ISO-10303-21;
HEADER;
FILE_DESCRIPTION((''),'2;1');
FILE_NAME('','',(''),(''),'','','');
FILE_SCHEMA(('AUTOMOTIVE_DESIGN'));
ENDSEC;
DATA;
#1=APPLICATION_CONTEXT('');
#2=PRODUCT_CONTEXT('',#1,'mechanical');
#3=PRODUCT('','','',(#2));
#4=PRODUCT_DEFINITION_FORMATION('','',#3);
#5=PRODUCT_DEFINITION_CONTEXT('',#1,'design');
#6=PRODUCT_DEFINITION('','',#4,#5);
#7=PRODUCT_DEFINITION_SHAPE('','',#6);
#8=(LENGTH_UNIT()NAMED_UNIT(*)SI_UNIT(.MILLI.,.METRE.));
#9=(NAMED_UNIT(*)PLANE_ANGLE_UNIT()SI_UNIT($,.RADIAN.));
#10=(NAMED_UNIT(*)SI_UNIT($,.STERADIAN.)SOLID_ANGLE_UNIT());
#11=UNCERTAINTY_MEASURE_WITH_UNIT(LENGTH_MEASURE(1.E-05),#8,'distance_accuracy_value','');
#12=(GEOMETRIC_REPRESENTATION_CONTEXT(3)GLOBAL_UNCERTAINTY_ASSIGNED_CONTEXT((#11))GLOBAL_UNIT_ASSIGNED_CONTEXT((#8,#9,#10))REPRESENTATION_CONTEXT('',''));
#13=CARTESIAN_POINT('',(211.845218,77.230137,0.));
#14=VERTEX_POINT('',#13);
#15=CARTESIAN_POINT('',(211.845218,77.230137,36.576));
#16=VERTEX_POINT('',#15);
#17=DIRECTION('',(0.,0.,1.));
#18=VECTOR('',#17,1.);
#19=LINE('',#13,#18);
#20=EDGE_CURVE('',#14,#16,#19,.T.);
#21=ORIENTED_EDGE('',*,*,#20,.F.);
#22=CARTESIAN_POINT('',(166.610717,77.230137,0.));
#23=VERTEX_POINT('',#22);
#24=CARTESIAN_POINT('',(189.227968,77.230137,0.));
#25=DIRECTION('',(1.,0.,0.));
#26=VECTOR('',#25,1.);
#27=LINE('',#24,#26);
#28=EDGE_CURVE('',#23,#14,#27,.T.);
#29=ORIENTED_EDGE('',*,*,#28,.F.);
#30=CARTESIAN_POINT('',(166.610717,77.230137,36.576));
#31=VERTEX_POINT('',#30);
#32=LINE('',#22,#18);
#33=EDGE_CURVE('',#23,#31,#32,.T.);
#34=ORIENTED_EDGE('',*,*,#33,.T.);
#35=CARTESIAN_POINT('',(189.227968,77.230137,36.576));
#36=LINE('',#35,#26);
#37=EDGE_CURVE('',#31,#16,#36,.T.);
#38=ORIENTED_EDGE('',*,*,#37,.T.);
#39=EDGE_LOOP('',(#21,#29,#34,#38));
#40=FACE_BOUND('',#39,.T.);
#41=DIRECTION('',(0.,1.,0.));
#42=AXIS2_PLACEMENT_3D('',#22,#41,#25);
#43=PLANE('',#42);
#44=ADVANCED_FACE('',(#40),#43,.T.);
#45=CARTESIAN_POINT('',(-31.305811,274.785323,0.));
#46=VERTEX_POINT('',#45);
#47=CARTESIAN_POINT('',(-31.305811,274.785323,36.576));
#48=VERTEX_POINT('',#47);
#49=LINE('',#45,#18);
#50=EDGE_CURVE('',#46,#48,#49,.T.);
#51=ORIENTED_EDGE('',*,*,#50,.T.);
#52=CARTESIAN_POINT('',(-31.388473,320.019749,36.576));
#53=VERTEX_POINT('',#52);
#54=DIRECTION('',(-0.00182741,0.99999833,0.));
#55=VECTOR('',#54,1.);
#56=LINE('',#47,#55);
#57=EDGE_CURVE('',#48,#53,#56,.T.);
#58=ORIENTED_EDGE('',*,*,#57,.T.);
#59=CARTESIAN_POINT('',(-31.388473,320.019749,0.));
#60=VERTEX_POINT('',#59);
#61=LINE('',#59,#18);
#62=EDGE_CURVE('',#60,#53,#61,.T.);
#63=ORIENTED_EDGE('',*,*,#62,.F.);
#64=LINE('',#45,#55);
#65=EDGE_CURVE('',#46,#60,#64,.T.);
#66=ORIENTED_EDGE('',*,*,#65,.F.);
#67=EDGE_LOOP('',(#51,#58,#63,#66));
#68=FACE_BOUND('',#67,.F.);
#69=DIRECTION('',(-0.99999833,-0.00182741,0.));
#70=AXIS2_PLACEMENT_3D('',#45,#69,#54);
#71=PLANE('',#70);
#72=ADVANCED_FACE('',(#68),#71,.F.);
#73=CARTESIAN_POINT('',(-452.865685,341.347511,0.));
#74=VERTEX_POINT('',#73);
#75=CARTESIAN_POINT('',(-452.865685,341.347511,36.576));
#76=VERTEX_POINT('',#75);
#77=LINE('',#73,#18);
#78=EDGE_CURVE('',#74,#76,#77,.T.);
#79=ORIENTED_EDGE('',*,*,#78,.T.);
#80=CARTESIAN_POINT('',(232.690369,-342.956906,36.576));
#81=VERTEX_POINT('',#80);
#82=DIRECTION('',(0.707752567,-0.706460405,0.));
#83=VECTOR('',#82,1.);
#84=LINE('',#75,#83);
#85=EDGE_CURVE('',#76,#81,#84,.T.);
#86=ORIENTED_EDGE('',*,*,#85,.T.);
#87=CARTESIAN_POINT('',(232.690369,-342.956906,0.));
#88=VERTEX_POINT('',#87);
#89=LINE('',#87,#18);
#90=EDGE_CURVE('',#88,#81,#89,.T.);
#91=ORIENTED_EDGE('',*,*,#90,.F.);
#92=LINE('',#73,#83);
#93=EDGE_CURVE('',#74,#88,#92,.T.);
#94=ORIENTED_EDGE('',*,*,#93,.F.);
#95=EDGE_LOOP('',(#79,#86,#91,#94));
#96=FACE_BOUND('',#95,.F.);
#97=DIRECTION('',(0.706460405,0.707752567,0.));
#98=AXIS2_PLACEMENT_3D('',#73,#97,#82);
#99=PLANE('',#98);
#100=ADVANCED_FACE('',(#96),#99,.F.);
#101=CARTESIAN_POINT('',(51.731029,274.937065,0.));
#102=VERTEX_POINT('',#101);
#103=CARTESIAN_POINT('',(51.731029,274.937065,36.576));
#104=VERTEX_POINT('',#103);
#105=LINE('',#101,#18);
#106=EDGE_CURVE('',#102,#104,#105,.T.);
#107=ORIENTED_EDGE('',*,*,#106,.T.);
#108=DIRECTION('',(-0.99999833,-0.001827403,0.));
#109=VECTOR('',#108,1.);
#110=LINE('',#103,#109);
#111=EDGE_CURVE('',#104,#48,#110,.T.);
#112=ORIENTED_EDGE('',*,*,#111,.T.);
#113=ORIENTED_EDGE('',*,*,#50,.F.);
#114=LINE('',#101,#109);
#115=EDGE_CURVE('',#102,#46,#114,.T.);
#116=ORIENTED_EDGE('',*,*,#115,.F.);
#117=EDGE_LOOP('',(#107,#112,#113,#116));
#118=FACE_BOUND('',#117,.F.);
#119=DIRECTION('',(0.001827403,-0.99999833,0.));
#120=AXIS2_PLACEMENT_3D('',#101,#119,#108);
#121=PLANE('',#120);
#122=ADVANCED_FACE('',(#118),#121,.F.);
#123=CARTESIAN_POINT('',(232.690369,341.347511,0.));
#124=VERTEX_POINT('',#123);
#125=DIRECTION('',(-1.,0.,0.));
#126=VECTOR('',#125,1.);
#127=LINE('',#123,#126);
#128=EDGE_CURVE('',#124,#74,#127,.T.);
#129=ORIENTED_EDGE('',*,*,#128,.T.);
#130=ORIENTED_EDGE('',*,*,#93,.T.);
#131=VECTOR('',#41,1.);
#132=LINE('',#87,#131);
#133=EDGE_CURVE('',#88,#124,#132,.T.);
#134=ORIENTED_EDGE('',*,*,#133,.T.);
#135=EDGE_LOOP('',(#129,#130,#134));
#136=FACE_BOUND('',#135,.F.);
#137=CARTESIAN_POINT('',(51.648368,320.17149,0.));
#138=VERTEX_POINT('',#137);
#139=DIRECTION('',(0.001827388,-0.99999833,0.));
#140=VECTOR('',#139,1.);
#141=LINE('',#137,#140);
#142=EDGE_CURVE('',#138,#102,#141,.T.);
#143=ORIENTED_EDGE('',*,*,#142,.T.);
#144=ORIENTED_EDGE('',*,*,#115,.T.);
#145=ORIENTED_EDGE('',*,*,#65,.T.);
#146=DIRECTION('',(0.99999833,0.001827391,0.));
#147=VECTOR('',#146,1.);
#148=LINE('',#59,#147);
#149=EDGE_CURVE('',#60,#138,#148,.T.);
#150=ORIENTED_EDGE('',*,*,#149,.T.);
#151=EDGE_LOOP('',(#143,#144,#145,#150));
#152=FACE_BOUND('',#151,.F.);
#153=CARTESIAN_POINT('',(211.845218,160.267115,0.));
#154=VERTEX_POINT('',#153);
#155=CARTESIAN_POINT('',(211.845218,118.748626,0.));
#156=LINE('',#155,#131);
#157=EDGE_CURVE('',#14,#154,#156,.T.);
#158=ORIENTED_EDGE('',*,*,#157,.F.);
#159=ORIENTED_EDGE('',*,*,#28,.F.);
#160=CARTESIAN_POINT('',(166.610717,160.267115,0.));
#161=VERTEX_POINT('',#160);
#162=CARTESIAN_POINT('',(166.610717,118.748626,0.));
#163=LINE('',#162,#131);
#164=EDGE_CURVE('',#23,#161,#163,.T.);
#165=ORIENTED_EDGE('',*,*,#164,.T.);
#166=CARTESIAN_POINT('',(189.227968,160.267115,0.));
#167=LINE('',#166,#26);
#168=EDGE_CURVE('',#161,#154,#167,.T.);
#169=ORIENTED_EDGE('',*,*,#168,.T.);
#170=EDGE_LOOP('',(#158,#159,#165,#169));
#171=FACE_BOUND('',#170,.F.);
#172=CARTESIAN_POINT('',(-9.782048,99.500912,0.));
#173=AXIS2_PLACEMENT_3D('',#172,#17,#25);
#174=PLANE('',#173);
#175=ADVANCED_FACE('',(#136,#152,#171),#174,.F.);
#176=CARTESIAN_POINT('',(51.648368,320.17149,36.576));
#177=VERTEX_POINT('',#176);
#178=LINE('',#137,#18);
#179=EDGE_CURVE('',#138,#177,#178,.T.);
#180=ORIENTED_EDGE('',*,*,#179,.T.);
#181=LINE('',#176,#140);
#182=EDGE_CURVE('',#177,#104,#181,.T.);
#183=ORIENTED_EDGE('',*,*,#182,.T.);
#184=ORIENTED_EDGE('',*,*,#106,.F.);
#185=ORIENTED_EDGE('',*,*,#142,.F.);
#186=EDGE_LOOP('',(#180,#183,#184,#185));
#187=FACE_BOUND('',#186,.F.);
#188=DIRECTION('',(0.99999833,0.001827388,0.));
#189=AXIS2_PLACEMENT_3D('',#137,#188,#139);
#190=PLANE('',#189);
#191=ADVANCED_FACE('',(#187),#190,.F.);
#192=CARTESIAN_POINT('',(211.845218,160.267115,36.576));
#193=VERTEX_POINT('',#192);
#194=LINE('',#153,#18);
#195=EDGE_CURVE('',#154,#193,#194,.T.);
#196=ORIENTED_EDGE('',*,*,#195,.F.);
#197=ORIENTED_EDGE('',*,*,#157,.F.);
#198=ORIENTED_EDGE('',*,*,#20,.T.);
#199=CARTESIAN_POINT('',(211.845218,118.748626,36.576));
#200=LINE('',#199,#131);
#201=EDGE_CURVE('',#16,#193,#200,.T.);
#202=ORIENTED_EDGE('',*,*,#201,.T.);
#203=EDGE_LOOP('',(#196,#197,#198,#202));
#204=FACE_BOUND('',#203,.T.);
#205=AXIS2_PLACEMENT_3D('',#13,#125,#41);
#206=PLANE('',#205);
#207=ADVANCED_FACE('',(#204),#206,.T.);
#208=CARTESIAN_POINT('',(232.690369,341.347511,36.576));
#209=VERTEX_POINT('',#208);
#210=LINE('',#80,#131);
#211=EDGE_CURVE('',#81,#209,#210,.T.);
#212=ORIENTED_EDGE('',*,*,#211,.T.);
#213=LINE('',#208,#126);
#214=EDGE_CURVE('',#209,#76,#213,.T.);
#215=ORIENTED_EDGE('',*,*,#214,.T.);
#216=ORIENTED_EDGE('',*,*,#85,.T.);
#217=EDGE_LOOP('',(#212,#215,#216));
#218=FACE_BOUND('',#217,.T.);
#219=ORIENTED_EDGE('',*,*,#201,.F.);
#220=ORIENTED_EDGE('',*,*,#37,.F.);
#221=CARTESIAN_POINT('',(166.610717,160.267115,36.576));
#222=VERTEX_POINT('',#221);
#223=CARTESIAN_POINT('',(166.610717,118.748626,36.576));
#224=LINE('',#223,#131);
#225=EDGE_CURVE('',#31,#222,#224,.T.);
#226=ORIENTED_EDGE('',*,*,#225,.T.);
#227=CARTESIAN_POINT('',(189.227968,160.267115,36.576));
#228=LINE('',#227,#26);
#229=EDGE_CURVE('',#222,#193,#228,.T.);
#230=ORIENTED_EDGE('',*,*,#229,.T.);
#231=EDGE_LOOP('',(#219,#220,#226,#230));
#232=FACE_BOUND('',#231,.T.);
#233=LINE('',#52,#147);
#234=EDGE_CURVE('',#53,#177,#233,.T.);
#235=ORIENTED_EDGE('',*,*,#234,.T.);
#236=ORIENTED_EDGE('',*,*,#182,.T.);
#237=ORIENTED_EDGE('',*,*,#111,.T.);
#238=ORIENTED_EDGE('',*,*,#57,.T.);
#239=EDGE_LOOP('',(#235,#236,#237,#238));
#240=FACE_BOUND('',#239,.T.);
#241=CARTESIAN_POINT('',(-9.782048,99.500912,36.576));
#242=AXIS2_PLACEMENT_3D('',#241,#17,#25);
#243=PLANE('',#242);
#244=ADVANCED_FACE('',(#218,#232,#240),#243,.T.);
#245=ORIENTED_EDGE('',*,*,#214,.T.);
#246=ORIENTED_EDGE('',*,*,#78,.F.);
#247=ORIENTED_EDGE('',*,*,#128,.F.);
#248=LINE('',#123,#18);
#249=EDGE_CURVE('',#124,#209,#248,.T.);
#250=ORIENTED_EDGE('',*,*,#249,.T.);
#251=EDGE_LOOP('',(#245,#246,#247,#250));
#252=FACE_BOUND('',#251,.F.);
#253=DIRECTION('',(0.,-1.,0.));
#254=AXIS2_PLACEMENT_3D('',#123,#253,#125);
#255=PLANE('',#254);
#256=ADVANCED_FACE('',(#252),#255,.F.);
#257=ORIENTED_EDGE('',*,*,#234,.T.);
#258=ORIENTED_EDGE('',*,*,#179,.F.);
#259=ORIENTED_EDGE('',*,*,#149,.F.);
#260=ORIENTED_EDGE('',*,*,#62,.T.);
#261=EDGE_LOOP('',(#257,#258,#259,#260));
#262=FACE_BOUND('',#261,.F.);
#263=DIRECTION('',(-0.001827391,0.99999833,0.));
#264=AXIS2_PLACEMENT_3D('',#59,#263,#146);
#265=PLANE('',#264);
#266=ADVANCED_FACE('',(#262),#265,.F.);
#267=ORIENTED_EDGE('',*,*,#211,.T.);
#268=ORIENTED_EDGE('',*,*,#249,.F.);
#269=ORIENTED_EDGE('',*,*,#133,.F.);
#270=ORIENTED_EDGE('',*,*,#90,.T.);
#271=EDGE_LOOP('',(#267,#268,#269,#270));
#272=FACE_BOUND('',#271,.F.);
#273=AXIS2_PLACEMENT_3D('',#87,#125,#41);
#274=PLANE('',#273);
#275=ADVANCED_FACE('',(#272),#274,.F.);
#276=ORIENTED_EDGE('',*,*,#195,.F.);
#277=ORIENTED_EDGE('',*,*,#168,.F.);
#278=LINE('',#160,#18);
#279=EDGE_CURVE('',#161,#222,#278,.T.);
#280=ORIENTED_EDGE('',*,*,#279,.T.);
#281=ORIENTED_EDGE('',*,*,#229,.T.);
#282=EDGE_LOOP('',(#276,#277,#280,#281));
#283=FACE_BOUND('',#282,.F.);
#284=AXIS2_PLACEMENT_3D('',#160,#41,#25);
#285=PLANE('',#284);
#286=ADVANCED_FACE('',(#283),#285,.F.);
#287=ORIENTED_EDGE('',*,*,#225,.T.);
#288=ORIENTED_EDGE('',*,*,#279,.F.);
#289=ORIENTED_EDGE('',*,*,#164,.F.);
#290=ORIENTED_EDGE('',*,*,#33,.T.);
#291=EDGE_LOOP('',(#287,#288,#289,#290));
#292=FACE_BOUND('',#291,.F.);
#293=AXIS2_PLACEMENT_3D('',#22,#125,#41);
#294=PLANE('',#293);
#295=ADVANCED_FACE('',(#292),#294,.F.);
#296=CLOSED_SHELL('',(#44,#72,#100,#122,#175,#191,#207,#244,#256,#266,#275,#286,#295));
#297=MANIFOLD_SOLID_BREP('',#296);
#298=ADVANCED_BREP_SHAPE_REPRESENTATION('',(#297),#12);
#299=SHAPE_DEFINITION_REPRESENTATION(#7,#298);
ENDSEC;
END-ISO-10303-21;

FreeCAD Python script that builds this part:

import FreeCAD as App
import Part
import Sketcher

V = App.Vector
Q = App.Units.Quantity

doc = App.newDocument("Part")
body = doc.addObject("PartDesign::Body", "Body")

# Sketch on XY plane
sketch1 = body.newObject("Sketcher::SketchObject", "Sketch")
sketch1.AttachmentSupport = (doc.getObject("XY_Plane"), [""])
sketch1.MapMode = "FlatFace"
sketch1.addGeometry([
    Part.LineSegment(V(233, 341, 0), V(-453, 341, 0)),  # 0
    Part.LineSegment(V(-453, 341, 0), V(233, -343, 0)),  # 1
    Part.LineSegment(V(233, -343, 0), V(233, 341, 0)),  # 2
    Part.LineSegment(V(212, 77, 0), V(167, 77, 0)),  # 3
    Part.LineSegment(V(167, 77, 0), V(167, 160, 0)),  # 4
    Part.LineSegment(V(167, 160, 0), V(212, 160, 0)),  # 5
    Part.LineSegment(V(212, 160, 0), V(212, 77, 0)),  # 6
    Part.LineSegment(V(-31, 275, 0), V(-31, 320, 0)),  # 7
    Part.LineSegment(V(-31, 320, 0), V(52, 320, 0)),  # 8
    Part.LineSegment(V(52, 320, 0), V(52, 275, 0)),  # 9
    Part.LineSegment(V(52, 275, 0), V(-31, 275, 0)),  # 10
], False)
sketch1.addConstraint([
    Sketcher.Constraint("Coincident", 0, 2, 1, 1),
    Sketcher.Constraint("Coincident", 1, 2, 2, 1),
    Sketcher.Constraint("Coincident", 2, 2, 0, 1),
    Sketcher.Constraint("Coincident", 3, 2, 4, 1),
    Sketcher.Constraint("Coincident", 4, 2, 5, 1),
    Sketcher.Constraint("Coincident", 5, 2, 6, 1),
    Sketcher.Constraint("Coincident", 6, 2, 3, 1),
    Sketcher.Constraint("Coincident", 7, 2, 8, 1),
    Sketcher.Constraint("Coincident", 8, 2, 9, 1),
    Sketcher.Constraint("Coincident", 9, 2, 10, 1),
    Sketcher.Constraint("Coincident", 10, 2, 7, 1),
    Sketcher.Constraint("Horizontal", 0),
    Sketcher.Constraint("Vertical", 2),
    Sketcher.Constraint("Horizontal", 3),
    Sketcher.Constraint("Vertical", 4),
    Sketcher.Constraint("Horizontal", 5),
    Sketcher.Constraint("Vertical", 6),
    Sketcher.Constraint("Perpendicular", 7, 8),
    Sketcher.Constraint("Perpendicular", 8, 9),
    Sketcher.Constraint("Perpendicular", 9, 10),
    Sketcher.Constraint("DistanceX", 3, 2, 3, 1, Q("45.234501 mm")),
    Sketcher.Constraint("Distance", 7, Q("45.234502 mm")),
    Sketcher.Constraint("DistanceY", 4, 1, 4, 2, Q("83.036979 mm")),
    Sketcher.Constraint("DistanceX", 8, 2, 2, 2, Q("181.042001 mm")),
    Sketcher.Constraint("DistanceX", 7, 2, 9, 2, Q("83.119502 mm")),
    Sketcher.Constraint("Distance", 8, Q("83.03698 mm")),
    Sketcher.Constraint("DistanceX", 0, 2, 0, 1, Q("685.556054 mm")),
    Sketcher.Constraint("DistanceY", 2, 1, 2, 2, Q("684.304417 mm")),
    Sketcher.Constraint("DistanceY", -1, 1, 0, 2, Q("341.347511 mm")),
    Sketcher.Constraint("DistanceX", -1, 1, 1, 2, Q("232.690369 mm")),
    Sketcher.Constraint("DistanceX", -1, 1, 5, 2, Q("211.845218 mm")),
    Sketcher.Constraint("DistanceY", -1, 1, 7, 2, Q("320.019749 mm")),
    Sketcher.Constraint("DistanceY", 1, 2, 4, 2, Q("503.224021 mm")),
])
pad1 = body.newObject("PartDesign::Pad", "Pad")
pad1.Profile = sketch1
pad1.Length = Q("1.44 in")

# Sketch on XY plane
sketch2 = body.newObject("Sketcher::SketchObject", "Sketch001")
sketch2.AttachmentSupport = (doc.getObject("XY_Plane"), [""])
sketch2.MapMode = "FlatFace"
sketch2.addGeometry([
    Part.LineSegment(V(233, 341, 0), V(-453, 341, 0)),  # 0
    Part.LineSegment(V(-453, 341, 0), V(233, -343, 0)),  # 1
    Part.LineSegment(V(233, -343, 0), V(233, 341, 0)),  # 2
    Part.LineSegment(V(212, 77, 0), V(167, 77, 0)),  # 3
    Part.LineSegment(V(167, 77, 0), V(167, 160, 0)),  # 4
    Part.LineSegment(V(167, 160, 0), V(212, 160, 0)),  # 5
    Part.LineSegment(V(212, 160, 0), V(212, 77, 0)),  # 6
    Part.LineSegment(V(-31, 275, 0), V(-31, 320, 0)),  # 7
    Part.LineSegment(V(-31, 320, 0), V(52, 320, 0)),  # 8
    Part.LineSegment(V(52, 320, 0), V(52, 275, 0)),  # 9
    Part.LineSegment(V(52, 275, 0), V(-31, 275, 0)),  # 10
], False)
sketch2.addConstraint([
    Sketcher.Constraint("Coincident", 0, 2, 1, 1),
    Sketcher.Constraint("Coincident", 1, 2, 2, 1),
    Sketcher.Constraint("Coincident", 2, 2, 0, 1),
    Sketcher.Constraint("Coincident", 3, 2, 4, 1),
    Sketcher.Constraint("Coincident", 4, 2, 5, 1),
    Sketcher.Constraint("Coincident", 5, 2, 6, 1),
    Sketcher.Constraint("Coincident", 6, 2, 3, 1),
    Sketcher.Constraint("Coincident", 7, 2, 8, 1),
    Sketcher.Constraint("Coincident", 8, 2, 9, 1),
    Sketcher.Constraint("Coincident", 9, 2, 10, 1),
    Sketcher.Constraint("Coincident", 10, 2, 7, 1),
    Sketcher.Constraint("Horizontal", 0),
    Sketcher.Constraint("Vertical", 2),
    Sketcher.Constraint("Horizontal", 3),
    Sketcher.Constraint("Vertical", 4),
    Sketcher.Constraint("Horizontal", 5),
    Sketcher.Constraint("Vertical", 6),
    Sketcher.Constraint("Perpendicular", 7, 8),
    Sketcher.Constraint("Perpendicular", 8, 9),
    Sketcher.Constraint("Perpendicular", 9, 10),
    Sketcher.Constraint("DistanceX", 3, 2, 3, 1, Q("45.234501 mm")),
    Sketcher.Constraint("Distance", 7, Q("45.234502 mm")),
    Sketcher.Constraint("DistanceY", 4, 1, 4, 2, Q("83.036979 mm")),
    Sketcher.Constraint("DistanceX", 8, 2, 2, 2, Q("181.042001 mm")),
    Sketcher.Constraint("DistanceX", 7, 2, 9, 2, Q("83.119502 mm")),
    Sketcher.Constraint("Distance", 8, Q("83.03698 mm")),
    Sketcher.Constraint("DistanceX", 0, 2, 0, 1, Q("685.556054 mm")),
    Sketcher.Constraint("DistanceY", 2, 1, 2, 2, Q("684.304417 mm")),
    Sketcher.Constraint("DistanceY", -1, 1, 0, 2, Q("341.347511 mm")),
    Sketcher.Constraint("DistanceX", -1, 1, 1, 2, Q("232.690369 mm")),
    Sketcher.Constraint("DistanceX", -1, 1, 5, 2, Q("211.845218 mm")),
    Sketcher.Constraint("DistanceY", -1, 1, 7, 2, Q("320.019749 mm")),
    Sketcher.Constraint("DistanceY", 1, 2, 4, 2, Q("503.224021 mm")),
])
pad2 = body.newObject("PartDesign::Pad", "Pad001")
pad2.Profile = sketch2
pad2.Length = Q("1.44 in")

doc.recompute()
